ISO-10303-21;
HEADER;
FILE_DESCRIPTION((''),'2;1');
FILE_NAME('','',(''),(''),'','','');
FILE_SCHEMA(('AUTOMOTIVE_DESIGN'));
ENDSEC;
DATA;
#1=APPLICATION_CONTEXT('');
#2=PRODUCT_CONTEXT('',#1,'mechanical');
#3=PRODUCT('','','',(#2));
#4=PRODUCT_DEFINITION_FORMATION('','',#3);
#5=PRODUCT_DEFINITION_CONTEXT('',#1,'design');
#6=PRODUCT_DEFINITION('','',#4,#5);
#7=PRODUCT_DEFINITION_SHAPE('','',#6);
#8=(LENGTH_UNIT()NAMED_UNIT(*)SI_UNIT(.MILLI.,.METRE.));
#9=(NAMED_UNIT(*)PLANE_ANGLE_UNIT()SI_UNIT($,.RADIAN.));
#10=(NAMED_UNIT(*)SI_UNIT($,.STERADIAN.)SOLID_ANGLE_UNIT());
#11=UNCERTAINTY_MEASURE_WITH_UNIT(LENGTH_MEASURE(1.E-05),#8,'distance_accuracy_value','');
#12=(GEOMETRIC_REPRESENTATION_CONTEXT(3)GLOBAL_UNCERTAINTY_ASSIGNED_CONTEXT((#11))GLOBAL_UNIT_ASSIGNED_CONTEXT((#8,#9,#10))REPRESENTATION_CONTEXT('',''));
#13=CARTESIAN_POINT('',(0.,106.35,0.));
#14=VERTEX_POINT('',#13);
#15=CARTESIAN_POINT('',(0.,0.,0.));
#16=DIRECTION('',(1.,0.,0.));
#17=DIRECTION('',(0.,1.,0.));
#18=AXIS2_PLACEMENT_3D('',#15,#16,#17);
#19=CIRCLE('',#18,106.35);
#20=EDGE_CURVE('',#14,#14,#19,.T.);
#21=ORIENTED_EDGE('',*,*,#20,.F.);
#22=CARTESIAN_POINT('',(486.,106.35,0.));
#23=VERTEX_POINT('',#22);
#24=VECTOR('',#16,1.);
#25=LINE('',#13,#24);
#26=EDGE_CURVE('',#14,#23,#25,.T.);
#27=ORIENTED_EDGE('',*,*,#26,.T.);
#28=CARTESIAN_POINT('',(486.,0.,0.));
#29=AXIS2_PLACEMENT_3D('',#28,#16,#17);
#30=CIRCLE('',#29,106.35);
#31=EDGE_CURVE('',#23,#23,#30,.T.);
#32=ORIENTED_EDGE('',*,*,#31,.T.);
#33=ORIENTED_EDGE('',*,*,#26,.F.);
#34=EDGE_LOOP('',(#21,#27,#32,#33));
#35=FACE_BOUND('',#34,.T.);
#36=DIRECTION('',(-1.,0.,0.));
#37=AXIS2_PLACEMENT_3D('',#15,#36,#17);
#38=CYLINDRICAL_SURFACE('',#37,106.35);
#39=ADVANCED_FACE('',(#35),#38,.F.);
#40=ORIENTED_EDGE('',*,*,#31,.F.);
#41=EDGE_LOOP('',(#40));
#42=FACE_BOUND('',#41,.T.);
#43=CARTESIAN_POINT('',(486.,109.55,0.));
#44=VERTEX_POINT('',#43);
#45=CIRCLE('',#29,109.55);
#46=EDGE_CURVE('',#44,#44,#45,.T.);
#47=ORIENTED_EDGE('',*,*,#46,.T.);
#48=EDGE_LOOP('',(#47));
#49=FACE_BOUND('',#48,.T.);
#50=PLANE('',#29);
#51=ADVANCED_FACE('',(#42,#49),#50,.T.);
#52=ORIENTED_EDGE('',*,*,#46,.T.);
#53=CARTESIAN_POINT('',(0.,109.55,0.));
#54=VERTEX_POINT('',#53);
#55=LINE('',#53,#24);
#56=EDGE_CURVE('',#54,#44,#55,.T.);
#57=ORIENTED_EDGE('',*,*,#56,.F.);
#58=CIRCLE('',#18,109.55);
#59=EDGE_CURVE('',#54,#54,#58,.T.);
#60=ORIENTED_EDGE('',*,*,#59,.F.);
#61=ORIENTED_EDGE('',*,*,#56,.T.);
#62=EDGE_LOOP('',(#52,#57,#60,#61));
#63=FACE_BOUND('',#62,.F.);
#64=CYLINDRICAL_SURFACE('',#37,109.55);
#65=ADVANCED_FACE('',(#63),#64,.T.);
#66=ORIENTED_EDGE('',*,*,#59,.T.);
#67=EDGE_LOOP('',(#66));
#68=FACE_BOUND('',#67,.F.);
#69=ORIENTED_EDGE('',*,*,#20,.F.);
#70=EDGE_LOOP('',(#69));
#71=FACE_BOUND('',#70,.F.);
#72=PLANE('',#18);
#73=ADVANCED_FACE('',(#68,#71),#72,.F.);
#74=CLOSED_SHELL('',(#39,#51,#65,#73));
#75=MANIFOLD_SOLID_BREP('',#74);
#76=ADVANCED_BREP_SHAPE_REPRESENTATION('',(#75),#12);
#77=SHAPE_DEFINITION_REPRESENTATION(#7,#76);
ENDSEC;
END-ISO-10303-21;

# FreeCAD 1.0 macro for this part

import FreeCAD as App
import Part
import Sketcher
Q = App.Units.Quantity

doc = App.newDocument("Part")
body = doc.addObject("PartDesign::Body", "Body")

# Sketch on YZ plane
sketch1 = doc.addObject("Sketcher::SketchObject", "Sketch")
body.addObject(sketch1)
sketch1.AttachmentSupport = (doc.YZ_Plane, [""])
sketch1.MapMode = "FlatFace"
sketch1.addGeometry([
    Part.Circle(App.Vector(0, 0, 0), App.Vector(0, 0, 1), 110),
    Part.Circle(App.Vector(0, 0, 0), App.Vector(0, 0, 1), 106),
], False)
sketch1.addConstraint([
    Sketcher.Constraint("Coincident", 0, 3, -1, 1),
    Sketcher.Constraint("Coincident", 1, 3, -1, 1),
    Sketcher.Constraint("Diameter", 0, Q("219.1 mm")),
    Sketcher.Constraint("Diameter", 1, Q("212.7 mm")),
])
pad1 = doc.addObject("PartDesign::Pad", "Pad")
body.addObject(pad1)
pad1.Profile = sketch1
pad1.Length = 486

doc.recompute()
